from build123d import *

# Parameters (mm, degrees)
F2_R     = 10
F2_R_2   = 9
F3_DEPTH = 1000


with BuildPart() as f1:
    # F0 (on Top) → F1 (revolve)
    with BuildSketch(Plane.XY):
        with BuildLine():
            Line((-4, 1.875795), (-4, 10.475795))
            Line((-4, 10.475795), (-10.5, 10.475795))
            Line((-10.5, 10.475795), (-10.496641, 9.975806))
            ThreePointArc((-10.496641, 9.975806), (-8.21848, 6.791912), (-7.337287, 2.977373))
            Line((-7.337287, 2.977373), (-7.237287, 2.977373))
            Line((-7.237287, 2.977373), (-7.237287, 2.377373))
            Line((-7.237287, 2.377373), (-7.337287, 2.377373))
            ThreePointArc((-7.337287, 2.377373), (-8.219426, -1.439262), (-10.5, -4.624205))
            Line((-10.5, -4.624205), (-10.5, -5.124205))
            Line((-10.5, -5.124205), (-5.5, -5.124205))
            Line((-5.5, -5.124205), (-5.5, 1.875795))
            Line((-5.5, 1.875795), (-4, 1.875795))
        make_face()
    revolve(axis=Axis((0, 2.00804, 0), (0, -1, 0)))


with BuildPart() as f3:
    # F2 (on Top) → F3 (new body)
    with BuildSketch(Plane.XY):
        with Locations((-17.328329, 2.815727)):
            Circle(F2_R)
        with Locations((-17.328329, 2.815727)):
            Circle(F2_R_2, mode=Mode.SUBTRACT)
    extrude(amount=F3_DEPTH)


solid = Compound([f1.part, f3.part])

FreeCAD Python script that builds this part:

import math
import FreeCAD as App
import Part
import Sketcher

doc = App.newDocument("Part")
params = doc.addObject("Spreadsheet::Sheet", "Params")
for row, (alias, value) in enumerate([
    ("sketch1_width", "5 mm"),
    ("sketch1_height", "7 mm"),
    ("sketch1_width2", "6.5 mm"),
    ("sketch1_width3", "0.1 mm"),
    ("sketch1_height2", "8.6 mm"),
    ("revolution_angle", "360 deg"),
    ("sketch2_diameter", "20 mm"),
    ("sketch2_diameter2", "18 mm"),
    ("pad1_length", "1000 mm"),
], start=1):
    params.set(f"A{row}", alias)
    params.set(f"B{row}", "=" + value)
    params.setAlias(f"B{row}", alias)

body = doc.addObject("PartDesign::Body", "Body")

# Sketch on XY plane
sketch1 = body.newObject("Sketcher::SketchObject", "Sketch")
sketch1.AttachmentSupport = (doc.getObject("XY_Plane"), [""])
sketch1.MapMode = "FlatFace"
sketch1.addGeometry([
    Part.LineSegment(App.Vector(-4, 1.88, 0), App.Vector(-4, 10.48, 0)),  # 0
    Part.LineSegment(App.Vector(-4, 10.48, 0), App.Vector(-10.5, 10.48, 0)),  # 1
    Part.LineSegment(App.Vector(-10.5, 10.48, 0), App.Vector(-10.5, 9.98, 0)),  # 2
    Part.ArcOfCircle(Part.Circle(App.Vector(-17.33, 2.68, 0), App.Vector(0, 0, 1), 10), math.radians(2), math.radians(47)),  # 3
    Part.LineSegment(App.Vector(-7.34, 2.98, 0), App.Vector(-7.24, 2.98, 0)),  # 4
    Part.LineSegment(App.Vector(-7.24, 2.98, 0), App.Vector(-7.24, 2.38, 0)),  # 5
    Part.LineSegment(App.Vector(-7.24, 2.38, 0), App.Vector(-7.34, 2.38, 0)),  # 6
    Part.ArcOfCircle(Part.Circle(App.Vector(-17.33, 2.68, 0), App.Vector(0, 0, 1), 10), math.radians(-47), math.radians(-2)),  # 7
    Part.LineSegment(App.Vector(-10.5, -4.62, 0), App.Vector(-10.5, -5.12, 0)),  # 8
    Part.LineSegment(App.Vector(-10.5, -5.12, 0), App.Vector(-5.5, -5.12, 0)),  # 9
    Part.LineSegment(App.Vector(-5.5, -5.12, 0), App.Vector(-5.5, 1.88, 0)),  # 10
    Part.LineSegment(App.Vector(-5.5, 1.88, 0), App.Vector(-4, 1.88, 0)),  # 11
], False)
sketch1.addConstraint([
    Sketcher.Constraint("Coincident", 0, 2, 1, 1),
    Sketcher.Constraint("Coincident", 1, 2, 2, 1),
    Sketcher.Constraint("Coincident", 2, 2, 3, 2),
    Sketcher.Constraint("Coincident", 3, 1, 4, 1),
    Sketcher.Constraint("Coincident", 4, 2, 5, 1),
    Sketcher.Constraint("Coincident", 5, 2, 6, 1),
    Sketcher.Constraint("Coincident", 6, 2, 7, 2),
    Sketcher.Constraint("Coincident", 7, 1, 8, 1),
    Sketcher.Constraint("Coincident", 8, 2, 9, 1),
    Sketcher.Constraint("Coincident", 9, 2, 10, 1),
    Sketcher.Constraint("Coincident", 10, 2, 11, 1),
    Sketcher.Constraint("Coincident", 11, 2, 0, 1),
    Sketcher.Constraint("Vertical", 0),
    Sketcher.Constraint("Horizontal", 1),
    Sketcher.Constraint("Horizontal", 4),
    Sketcher.Constraint("Vertical", 5),
    Sketcher.Constraint("Horizontal", 6),
    Sketcher.Constraint("Vertical", 8),
    Sketcher.Constraint("Horizontal", 9),
    Sketcher.Constraint("Vertical", 10),
    Sketcher.Constraint("Horizontal", 11),
    Sketcher.Constraint("Coincident", 7, 3, 3, 3),
    Sketcher.Constraint("Vertical", 3, 1, 6, 2),
    Sketcher.Constraint("Vertical", 1, 2, 7, 1),
    Sketcher.Constraint("DistanceX", 9, 1, 9, 2, 5.0),
    Sketcher.Constraint("DistanceY", 10, 1, 10, 2, 7.0),
    Sketcher.Constraint("DistanceX", 1, 2, 1, 1, 6.5),
    Sketcher.Constraint("DistanceX", 4, 1, 4, 2, 0.1),
    Sketcher.Constraint("DistanceY", 0, 1, 0, 2, 8.6),
    Sketcher.Constraint("DistanceY", 5, 2, 5, 1, 0.6),
    Sketcher.Constraint("DistanceY", 8, 2, 8, 1, 0.5),
    Sketcher.Constraint("DistanceX", 0, 2, -1, 1, 4.0),
    Sketcher.Constraint("Distance", 2, 0.5),
    Sketcher.Constraint("DistanceY", 3, 3, 3, 1, 0.299999),
    Sketcher.Constraint("Radius", 3, 9.999998),
    Sketcher.Constraint("DistanceX", 7, 3, -1, 1, 17.33278),
    Sketcher.Constraint("DistanceY", -1, 1, 7, 3, 2.67737),
])
sketch1.setExpression("Constraints[24]", "Params.sketch1_width")
sketch1.setExpression("Constraints[25]", "Params.sketch1_height")
sketch1.setExpression("Constraints[26]", "Params.sketch1_width2")
sketch1.setExpression("Constraints[27]", "Params.sketch1_width3")
sketch1.setExpression("Constraints[28]", "Params.sketch1_height2")
revolution = body.newObject("PartDesign::Revolution", "Revolution")
revolution.Profile = sketch1
revolution.ReferenceAxis = (sketch1, ["V_Axis"])
revolution.setExpression("Angle", "Params.revolution_angle")
body2 = doc.addObject("PartDesign::Body", "Body001")

# Sketch on XY plane
sketch2 = body2.newObject("Sketcher::SketchObject", "Sketch001")
sketch2.AttachmentSupport = (doc.getObject("XY_Plane001"), [""])
sketch2.MapMode = "FlatFace"
sketch2.addGeometry([
    Part.Circle(App.Vector(-17, 3, 0), App.Vector(0, 0, 1), 10),
    Part.Circle(App.Vector(-17, 3, 0), App.Vector(0, 0, 1), 9),
], False)
sketch2.addConstraint([
    Sketcher.Constraint("Coincident", 1, 3, 0, 3),
    Sketcher.Constraint("Diameter", 0, 20.0),
    Sketcher.Constraint("Diameter", 1, 18.0),
    Sketcher.Constraint("DistanceX", 0, 3, -1, 1, 17.328329),
    Sketcher.Constraint("DistanceY", -1, 1, 0, 3, 2.815727),
])
sketch2.setExpression("Constraints[1]", "Params.sketch2_diameter")
sketch2.setExpression("Constraints[2]", "Params.sketch2_diameter2")
pad1 = body2.newObject("PartDesign::Pad", "Pad")
pad1.Profile = sketch2
pad1.setExpression("Length", "Params.pad1_length")

doc.recompute()
